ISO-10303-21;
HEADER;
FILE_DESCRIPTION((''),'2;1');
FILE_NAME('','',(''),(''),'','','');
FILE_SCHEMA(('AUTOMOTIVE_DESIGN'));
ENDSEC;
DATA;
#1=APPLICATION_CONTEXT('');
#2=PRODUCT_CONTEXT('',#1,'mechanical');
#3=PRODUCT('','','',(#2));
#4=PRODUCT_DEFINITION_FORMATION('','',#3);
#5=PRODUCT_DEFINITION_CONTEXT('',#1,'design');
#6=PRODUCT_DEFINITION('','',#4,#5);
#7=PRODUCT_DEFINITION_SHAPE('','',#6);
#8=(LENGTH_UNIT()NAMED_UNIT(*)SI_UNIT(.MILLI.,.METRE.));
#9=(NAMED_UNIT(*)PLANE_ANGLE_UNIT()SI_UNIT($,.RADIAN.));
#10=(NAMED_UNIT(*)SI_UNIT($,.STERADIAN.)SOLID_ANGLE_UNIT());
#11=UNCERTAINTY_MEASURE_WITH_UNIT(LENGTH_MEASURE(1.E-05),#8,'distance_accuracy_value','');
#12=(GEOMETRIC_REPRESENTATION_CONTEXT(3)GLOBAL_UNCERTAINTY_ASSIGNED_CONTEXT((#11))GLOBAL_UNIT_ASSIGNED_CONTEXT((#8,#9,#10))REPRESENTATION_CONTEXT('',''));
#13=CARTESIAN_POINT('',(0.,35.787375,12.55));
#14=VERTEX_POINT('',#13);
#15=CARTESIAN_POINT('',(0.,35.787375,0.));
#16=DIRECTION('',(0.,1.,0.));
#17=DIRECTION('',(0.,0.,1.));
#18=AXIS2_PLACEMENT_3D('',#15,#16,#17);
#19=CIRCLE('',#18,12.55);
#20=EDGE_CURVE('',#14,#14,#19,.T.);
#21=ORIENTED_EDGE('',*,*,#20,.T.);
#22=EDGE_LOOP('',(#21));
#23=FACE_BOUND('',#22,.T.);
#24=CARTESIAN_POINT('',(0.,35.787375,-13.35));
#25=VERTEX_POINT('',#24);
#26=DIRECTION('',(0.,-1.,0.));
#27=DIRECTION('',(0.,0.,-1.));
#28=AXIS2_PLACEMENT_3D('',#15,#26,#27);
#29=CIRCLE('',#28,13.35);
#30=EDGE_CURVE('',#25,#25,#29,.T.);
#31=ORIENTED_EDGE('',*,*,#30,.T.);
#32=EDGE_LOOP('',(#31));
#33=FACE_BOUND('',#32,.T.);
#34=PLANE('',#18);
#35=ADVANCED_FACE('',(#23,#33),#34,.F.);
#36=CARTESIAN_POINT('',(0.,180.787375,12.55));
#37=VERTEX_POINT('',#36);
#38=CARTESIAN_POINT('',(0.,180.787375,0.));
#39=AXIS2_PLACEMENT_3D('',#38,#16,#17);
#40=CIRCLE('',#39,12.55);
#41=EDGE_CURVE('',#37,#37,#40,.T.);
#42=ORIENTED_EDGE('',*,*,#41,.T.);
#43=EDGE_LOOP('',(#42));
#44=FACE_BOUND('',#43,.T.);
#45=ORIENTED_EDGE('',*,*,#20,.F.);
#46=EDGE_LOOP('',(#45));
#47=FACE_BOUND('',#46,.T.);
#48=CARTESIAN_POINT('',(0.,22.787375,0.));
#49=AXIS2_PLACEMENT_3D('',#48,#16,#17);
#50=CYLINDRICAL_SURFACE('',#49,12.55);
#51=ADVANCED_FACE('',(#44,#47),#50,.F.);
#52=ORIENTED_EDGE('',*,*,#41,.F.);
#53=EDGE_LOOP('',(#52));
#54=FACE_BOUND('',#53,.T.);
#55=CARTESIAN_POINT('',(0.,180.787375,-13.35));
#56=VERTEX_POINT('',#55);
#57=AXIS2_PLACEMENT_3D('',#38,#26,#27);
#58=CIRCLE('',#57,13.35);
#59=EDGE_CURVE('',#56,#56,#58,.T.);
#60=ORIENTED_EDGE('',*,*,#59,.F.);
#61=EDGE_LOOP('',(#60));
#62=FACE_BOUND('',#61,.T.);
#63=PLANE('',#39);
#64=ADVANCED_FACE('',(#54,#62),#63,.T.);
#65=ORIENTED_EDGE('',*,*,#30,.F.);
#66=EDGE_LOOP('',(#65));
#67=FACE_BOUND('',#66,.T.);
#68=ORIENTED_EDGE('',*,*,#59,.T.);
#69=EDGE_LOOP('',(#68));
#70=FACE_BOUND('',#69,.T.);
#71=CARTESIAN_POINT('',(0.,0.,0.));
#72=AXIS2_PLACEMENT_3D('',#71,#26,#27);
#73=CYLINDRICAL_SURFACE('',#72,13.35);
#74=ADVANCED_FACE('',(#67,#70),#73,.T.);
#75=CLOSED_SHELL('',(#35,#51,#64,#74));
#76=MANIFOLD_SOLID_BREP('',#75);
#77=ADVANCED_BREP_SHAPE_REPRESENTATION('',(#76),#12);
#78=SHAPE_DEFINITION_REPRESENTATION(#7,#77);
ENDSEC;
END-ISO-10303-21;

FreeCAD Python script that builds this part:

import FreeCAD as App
import Part
import Sketcher
from FreeCAD import Vector
Q = App.Units.Quantity


def add_polygon(sketch, points):
    """Adds a closed chain of lines whose ends are joined by coincident constraints."""
    first, n = sketch.GeometryCount, len(points)
    for a, b in zip(points, points[1:] + points[:1]):
        sketch.addGeometry(Part.LineSegment(App.Vector(*a, 0), App.Vector(*b, 0)), False)
    for i in range(n):
        sketch.addConstraint(Sketcher.Constraint("Coincident", first + i, 2, first + (i + 1) % n, 1))

doc = App.newDocument("Part")
params = doc.addObject("Spreadsheet::Sheet", "Params")
for row, (alias, value) in enumerate([
    ("sketch1_height", "145 mm"),
    ("sketch1_width", "13.35 mm"),
    ("revolution_angle", "360 deg"),
    ("sketch2_diameter", "25.1 mm"),
    ("pocket1_length", "158 mm"),
], start=1):
    params.set(f"A{row}", alias)
    params.set(f"B{row}", "=" + value)
    params.setAlias(f"B{row}", alias)

body = doc.addObject("PartDesign::Body", "Body")

# Sketch on XY plane
sketch1 = body.newObject("Sketcher::SketchObject", "Sketch")
sketch1.AttachmentSupport = (doc.getObject("XY_Plane"), [""])
sketch1.MapMode = "FlatFace"
add_polygon(sketch1, [(-13, 181), (-13, 36), (0, 36), (0, 181)])  # lines 0-3
sketch1.addConstraint([
    Sketcher.Constraint("Vertical", 0),
    Sketcher.Constraint("Horizontal", 1),
    Sketcher.Constraint("Vertical", 2),
    Sketcher.Constraint("Horizontal", 3),
    Sketcher.Constraint("PointOnObject", 1, 2, -2),
    Sketcher.Constraint("DistanceY", 0, 2, 0, 1, Q("145 mm")),
    Sketcher.Constraint("DistanceX", 1, 1, 1, 2, Q("13.35 mm")),
    Sketcher.Constraint("DistanceY", -1, 1, 0, 2, Q("35.787375 mm")),
])
sketch1.setExpression("Constraints[9]", "Params.sketch1_height")
sketch1.setExpression("Constraints[10]", "Params.sketch1_width")
revolution = body.newObject("PartDesign::Revolution", "Revolution")
revolution.Profile = sketch1
revolution.ReferenceAxis = (sketch1, ["V_Axis"])
revolution.setExpression("Angle", "Params.revolution_angle")

# Sketch on XZ plane
sketch2 = body.newObject("Sketcher::SketchObject", "Sketch001")
sketch2.AttachmentSupport = (doc.getObject("XZ_Plane"), [""])
sketch2.MapMode = "FlatFace"
sketch2.AttachmentOffset = App.Placement(Vector(0, 0, -180.787375), App.Rotation())
sketch2.addGeometry(Part.Circle(Vector(0, 0, 0), Vector(0, 0, 1), 13), False)
sketch2.addConstraint([
    Sketcher.Constraint("Coincident", 0, 3, -1, 1),
    Sketcher.Constraint("Diameter", 0, Q("25.1 mm")),
])
sketch2.setExpression("Constraints[1]", "Params.sketch2_diameter")
pocket1 = body.newObject("PartDesign::Pocket", "Pocket")
pocket1.Profile = sketch2
pocket1.setExpression("Length", "Params.pocket1_length")
pocket1.Reversed = True

doc.recompute()
